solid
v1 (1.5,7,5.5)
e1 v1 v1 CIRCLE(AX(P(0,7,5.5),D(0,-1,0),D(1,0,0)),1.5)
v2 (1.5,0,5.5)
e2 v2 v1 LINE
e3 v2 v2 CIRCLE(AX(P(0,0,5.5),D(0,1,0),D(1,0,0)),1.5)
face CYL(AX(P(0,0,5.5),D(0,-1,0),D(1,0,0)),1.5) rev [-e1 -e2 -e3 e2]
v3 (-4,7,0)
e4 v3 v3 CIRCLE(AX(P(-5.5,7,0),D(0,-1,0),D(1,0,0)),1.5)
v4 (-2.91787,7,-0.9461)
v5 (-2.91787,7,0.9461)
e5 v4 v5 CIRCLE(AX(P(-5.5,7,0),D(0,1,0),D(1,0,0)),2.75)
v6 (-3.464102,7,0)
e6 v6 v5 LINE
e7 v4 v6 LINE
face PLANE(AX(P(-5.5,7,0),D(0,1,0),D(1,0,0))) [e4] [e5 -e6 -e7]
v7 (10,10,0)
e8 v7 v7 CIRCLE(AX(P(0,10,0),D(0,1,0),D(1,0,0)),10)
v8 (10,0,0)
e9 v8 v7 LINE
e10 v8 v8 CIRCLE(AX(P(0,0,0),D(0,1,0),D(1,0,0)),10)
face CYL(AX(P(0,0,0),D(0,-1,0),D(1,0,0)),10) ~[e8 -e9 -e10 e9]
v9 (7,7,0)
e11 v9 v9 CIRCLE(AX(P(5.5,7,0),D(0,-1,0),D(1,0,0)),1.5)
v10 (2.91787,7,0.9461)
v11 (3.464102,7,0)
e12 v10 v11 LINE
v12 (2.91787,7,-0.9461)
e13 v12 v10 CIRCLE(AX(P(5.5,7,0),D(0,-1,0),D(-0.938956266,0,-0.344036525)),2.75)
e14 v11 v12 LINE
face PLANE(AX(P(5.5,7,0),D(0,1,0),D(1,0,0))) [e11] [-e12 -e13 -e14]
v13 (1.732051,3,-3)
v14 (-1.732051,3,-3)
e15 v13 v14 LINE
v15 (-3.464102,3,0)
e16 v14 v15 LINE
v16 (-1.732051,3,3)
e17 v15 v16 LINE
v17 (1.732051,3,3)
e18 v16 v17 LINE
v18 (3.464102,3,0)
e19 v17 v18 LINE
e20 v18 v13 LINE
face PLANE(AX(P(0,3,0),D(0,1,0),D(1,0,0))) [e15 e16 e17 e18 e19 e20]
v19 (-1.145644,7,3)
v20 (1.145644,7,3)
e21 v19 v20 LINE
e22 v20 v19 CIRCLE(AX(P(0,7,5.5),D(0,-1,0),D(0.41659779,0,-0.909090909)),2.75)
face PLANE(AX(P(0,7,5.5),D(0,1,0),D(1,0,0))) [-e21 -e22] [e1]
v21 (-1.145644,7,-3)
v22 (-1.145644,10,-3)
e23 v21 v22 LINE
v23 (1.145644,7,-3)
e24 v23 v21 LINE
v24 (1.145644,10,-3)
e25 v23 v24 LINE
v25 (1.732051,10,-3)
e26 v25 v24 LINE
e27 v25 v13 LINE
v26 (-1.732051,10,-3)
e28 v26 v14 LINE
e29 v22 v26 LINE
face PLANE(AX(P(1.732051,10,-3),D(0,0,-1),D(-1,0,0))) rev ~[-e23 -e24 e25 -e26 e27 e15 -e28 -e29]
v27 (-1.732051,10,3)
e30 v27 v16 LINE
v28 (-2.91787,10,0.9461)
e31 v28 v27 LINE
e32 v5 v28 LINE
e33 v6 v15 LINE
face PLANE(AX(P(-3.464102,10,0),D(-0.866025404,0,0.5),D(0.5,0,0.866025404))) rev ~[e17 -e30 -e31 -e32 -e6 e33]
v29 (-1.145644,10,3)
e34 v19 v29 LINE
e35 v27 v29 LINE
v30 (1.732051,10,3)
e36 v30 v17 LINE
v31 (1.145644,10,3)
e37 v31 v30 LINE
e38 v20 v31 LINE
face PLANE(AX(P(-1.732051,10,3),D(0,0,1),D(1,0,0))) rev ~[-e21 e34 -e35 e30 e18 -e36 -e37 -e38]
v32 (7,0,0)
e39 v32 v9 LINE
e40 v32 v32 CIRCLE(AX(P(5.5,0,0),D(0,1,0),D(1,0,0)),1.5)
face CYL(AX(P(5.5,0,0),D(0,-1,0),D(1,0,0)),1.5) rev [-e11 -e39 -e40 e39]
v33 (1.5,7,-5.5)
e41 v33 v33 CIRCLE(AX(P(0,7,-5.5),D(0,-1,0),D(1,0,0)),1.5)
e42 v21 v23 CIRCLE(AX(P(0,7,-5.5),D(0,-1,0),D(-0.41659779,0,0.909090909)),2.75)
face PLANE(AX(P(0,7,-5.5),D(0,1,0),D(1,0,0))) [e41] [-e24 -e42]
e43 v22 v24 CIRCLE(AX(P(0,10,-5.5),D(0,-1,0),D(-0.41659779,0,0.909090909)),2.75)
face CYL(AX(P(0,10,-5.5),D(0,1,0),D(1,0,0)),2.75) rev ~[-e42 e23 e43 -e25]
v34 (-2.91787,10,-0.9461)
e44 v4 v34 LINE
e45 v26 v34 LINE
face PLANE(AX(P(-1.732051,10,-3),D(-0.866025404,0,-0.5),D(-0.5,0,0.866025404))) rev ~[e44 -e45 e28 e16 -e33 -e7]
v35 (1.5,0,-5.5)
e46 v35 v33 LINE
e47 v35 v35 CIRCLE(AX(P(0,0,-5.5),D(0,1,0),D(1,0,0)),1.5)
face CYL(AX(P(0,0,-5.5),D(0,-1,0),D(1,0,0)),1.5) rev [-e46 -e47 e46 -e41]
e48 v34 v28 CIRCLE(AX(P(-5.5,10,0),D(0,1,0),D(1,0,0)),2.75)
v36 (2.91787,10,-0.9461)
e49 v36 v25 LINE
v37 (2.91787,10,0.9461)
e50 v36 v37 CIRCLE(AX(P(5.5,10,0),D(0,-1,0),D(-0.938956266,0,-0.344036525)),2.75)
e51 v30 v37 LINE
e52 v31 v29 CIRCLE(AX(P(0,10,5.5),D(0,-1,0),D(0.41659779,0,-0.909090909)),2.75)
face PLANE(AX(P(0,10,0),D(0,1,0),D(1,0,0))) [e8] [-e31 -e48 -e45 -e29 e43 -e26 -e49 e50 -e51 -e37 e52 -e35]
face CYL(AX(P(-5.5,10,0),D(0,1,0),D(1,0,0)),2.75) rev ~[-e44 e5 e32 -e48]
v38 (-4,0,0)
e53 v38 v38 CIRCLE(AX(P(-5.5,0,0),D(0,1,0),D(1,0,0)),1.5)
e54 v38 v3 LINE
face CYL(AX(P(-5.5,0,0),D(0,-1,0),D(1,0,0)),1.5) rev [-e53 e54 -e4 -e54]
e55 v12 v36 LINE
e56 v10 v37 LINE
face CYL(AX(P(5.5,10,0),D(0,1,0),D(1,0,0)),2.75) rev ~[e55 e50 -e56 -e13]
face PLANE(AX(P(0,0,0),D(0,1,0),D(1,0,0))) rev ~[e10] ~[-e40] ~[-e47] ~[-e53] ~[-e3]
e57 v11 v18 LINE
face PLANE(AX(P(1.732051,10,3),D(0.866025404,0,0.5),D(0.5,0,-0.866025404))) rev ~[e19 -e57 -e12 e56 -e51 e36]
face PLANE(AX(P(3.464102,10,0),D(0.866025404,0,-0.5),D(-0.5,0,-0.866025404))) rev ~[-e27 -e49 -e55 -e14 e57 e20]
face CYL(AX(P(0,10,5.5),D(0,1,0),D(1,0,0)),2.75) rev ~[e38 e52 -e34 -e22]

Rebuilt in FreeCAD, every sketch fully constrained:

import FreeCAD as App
import Part
import Sketcher
from FreeCAD import Vector
Q = App.Units.Quantity

doc = App.newDocument("Part")
params = doc.addObject("Spreadsheet::Sheet", "Params")
for row, (alias, value) in enumerate([
    ("sketch1_diameter", "20 mm"),
    ("sketch1_diameter2", "3 mm"),
    ("pad1_length", "10 mm"),
    ("sketch2_diameter", "5.5 mm"),
    ("pocket1_length", "3 mm"),
    ("pocket2_length", "7 mm"),
], start=1):
    params.set(f"A{row}", alias)
    params.set(f"B{row}", "=" + value)
    params.setAlias(f"B{row}", alias)

body = doc.addObject("PartDesign::Body", "Body")

# Sketch on XZ plane
sketch1 = body.newObject("Sketcher::SketchObject", "Sketch")
sketch1.AttachmentSupport = (doc.getObject("XZ_Plane"), [""])
sketch1.MapMode = "FlatFace"
sketch1.addGeometry([
    Part.Circle(Vector(0, 0, 0), Vector(0, 0, 1), 10),  # 0
    Part.Circle(Vector(0, 5.5, 0), Vector(0, 0, 1), 1.5),  # 1
    Part.Circle(Vector(-5.5, 0, 0), Vector(0, 0, 1), 1.5),  # 2
    Part.Circle(Vector(5.5, 0, 0), Vector(0, 0, 1), 1.5),  # 3
    Part.Circle(Vector(0, -5.5, 0), Vector(0, 0, 1), 1.5),  # 4
], False)
sketch1.addConstraint([
    Sketcher.Constraint("Coincident", 0, 3, -1, 1),
    Sketcher.Constraint("Equal", 1, 2),
    Sketcher.Constraint("Equal", 2, 3),
    Sketcher.Constraint("Equal", 3, 4),
    Sketcher.Constraint("Symmetric", 2, 3, 3, 3, -1, 1),
    Sketcher.Constraint("Symmetric", 1, 3, 4, 3, -1, 1),
    Sketcher.Constraint("PointOnObject", 1, 3, -2),
    Sketcher.Constraint("PointOnObject", 2, 3, -1),
    Sketcher.Constraint("Diameter", 0, 20.0),
    Sketcher.Constraint("Diameter", 1, 3.0),
    Sketcher.Constraint("DistanceX", 2, 3, 3, 3, 11.0),
    Sketcher.Constraint("DistanceY", 4, 3, 1, 3, 11.0),
])
sketch1.setExpression("Constraints[8]", "Params.sketch1_diameter")
sketch1.setExpression("Constraints[9]", "Params.sketch1_diameter2")
pad1 = body.newObject("PartDesign::Pad", "Pad")
pad1.Profile = sketch1
pad1.setExpression("Length", "Params.pad1_length")
pad1.Reversed = True

# Sketch on XZ plane
sketch2 = body.newObject("Sketcher::SketchObject", "Sketch001")
sketch2.AttachmentSupport = (doc.getObject("XZ_Plane"), [""])
sketch2.MapMode = "FlatFace"
sketch2.AttachmentOffset = App.Placement(Vector(0, 0, -10), App.Rotation())
sketch2.addGeometry([
    Part.Circle(Vector(0, -5.5, 0), Vector(0, 0, 1), 2.8),
    Part.Circle(Vector(5.5, 0, 0), Vector(0, 0, 1), 2.8),
    Part.Circle(Vector(0, 5.5, 0), Vector(0, 0, 1), 2.8),
    Part.Circle(Vector(-5.5, 0, 0), Vector(0, 0, 1), 2.8),
], False)
sketch2.addConstraint([
    Sketcher.Constraint("Equal", 0, 1),
    Sketcher.Constraint("Equal", 1, 2),
    Sketcher.Constraint("Equal", 2, 3),
    Sketcher.Constraint("Symmetric", 0, 3, 2, 3, -1, 1),
    Sketcher.Constraint("Symmetric", 1, 3, 3, 3, -1, 1),
    Sketcher.Constraint("PointOnObject", 0, 3, -2),
    Sketcher.Constraint("PointOnObject", 1, 3, -1),
    Sketcher.Constraint("Diameter", 0, 5.5),
    Sketcher.Constraint("DistanceY", 0, 3, 2, 3, 11.0),
    Sketcher.Constraint("DistanceX", 3, 3, 1, 3, 11.0),
])
sketch2.setExpression("Constraints[7]", "Params.sketch2_diameter")
pocket1 = body.newObject("PartDesign::Pocket", "Pocket")
pocket1.Profile = sketch2
pocket1.setExpression("Length", "Params.pocket1_length")
pocket1.Reversed = True

# Sketch on XZ plane
sketch3 = body.newObject("Sketcher::SketchObject", "Sketch002")
sketch3.AttachmentSupport = (doc.getObject("XZ_Plane"), [""])
sketch3.MapMode = "FlatFace"
sketch3.AttachmentOffset = App.Placement(Vector(0, 0, -10), App.Rotation())
sketch3.addGeometry([
    Part.LineSegment(Vector(3.5, 0, 0), Vector(1.7, -3, 0)),  # 0
    Part.LineSegment(Vector(1.7, -3, 0), Vector(-1.7, -3, 0)),  # 1
    Part.LineSegment(Vector(-1.7, -3, 0), Vector(-3.5, 0, 0)),  # 2
    Part.LineSegment(Vector(-3.5, 0, 0), Vector(-1.7, 3, 0)),  # 3
    Part.LineSegment(Vector(-1.7, 3, 0), Vector(1.7, 3, 0)),  # 4
    Part.LineSegment(Vector(1.7, 3, 0), Vector(3.5, 0, 0)),  # 5
], False)
sketch3.addConstraint([
    Sketcher.Constraint("Coincident", 0, 2, 1, 1),
    Sketcher.Constraint("Coincident", 1, 2, 2, 1),
    Sketcher.Constraint("Coincident", 2, 2, 3, 1),
    Sketcher.Constraint("Coincident", 3, 2, 4, 1),
    Sketcher.Constraint("Coincident", 4, 2, 5, 1),
    Sketcher.Constraint("Coincident", 5, 2, 0, 1),
    Sketcher.Constraint("Horizontal", 1),
    Sketcher.Constraint("Horizontal", 4),
    Sketcher.Constraint("Symmetric", 0, 2, 3, 2, -1, 1),
    Sketcher.Constraint("Symmetric", 2, 2, 5, 2, -1, 1),
    Sketcher.Constraint("PointOnObject", 2, 2, -1),
    Sketcher.Constraint("Parallel", 2, 5),
    Sketcher.Constraint("Vertical", 1, 2, 3, 2),
    Sketcher.Constraint("Angle", 0, Q("-120 deg")),
    Sketcher.Constraint("DistanceY", 0, 2, -1, 1, 3.0),
    Sketcher.Constraint("DistanceX", 1, 2, 1, 1, 3.464102),
])
pocket2 = body.newObject("PartDesign::Pocket", "Pocket001")
pocket2.Profile = sketch3
pocket2.setExpression("Length", "Params.pocket2_length")
pocket2.Reversed = True

doc.recompute()
